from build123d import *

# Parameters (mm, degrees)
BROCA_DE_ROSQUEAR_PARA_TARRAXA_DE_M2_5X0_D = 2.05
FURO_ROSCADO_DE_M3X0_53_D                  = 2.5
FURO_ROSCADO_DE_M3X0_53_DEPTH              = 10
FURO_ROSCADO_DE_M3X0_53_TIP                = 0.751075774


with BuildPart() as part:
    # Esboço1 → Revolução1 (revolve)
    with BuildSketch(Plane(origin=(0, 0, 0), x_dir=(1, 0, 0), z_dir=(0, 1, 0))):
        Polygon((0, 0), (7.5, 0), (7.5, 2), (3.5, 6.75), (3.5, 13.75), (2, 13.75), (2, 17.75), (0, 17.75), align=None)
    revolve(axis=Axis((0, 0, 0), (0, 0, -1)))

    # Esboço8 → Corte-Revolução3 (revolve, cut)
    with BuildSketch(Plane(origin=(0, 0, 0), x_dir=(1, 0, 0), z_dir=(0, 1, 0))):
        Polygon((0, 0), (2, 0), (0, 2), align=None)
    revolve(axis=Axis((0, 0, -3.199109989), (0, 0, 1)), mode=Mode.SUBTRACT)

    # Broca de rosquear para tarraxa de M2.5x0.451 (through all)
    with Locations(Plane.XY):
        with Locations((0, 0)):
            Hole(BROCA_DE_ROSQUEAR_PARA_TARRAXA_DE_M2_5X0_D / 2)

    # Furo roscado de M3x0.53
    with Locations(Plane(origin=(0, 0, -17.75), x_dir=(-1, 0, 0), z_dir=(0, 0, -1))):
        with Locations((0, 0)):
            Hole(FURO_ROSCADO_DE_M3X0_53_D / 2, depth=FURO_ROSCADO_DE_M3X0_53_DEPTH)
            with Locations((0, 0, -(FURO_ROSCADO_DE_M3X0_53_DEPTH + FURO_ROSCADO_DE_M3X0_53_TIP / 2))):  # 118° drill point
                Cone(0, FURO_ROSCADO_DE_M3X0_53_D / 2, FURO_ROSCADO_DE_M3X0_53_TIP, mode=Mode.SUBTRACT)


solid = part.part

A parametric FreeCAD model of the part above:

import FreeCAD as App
import Part
import Sketcher


def add_polygon(sketch, points):
    """Adds a closed chain of lines whose ends are joined by coincident constraints."""
    first, n = sketch.GeometryCount, len(points)
    for a, b in zip(points, points[1:] + points[:1]):
        sketch.addGeometry(Part.LineSegment(App.Vector(*a, 0), App.Vector(*b, 0)), False)
    for i in range(n):
        sketch.addConstraint(Sketcher.Constraint("Coincident", first + i, 2, first + (i + 1) % n, 1))

doc = App.newDocument("Part")
params = doc.addObject("Spreadsheet::Sheet", "Params")
for row, (alias, value) in enumerate([
    ("sketch1_width", "2 mm"),
    ("sketch1_height", "7 mm"),
    ("sketch1_height2", "4 mm"),
    ("sketch1_width2", "7.5 mm"),
    ("sketch1_width3", "1.5 mm"),
    ("revolution_angle", "360 deg"),
    ("sketch2_width", "2 mm"),
    ("groove_angle", "360 deg"),
    ("sketch3_diameter", "2.05 mm"),
    ("hole_diameter", "2.05 mm"),
    ("sketch4_diameter", "2.5 mm"),
    ("hole2_diameter", "2.5 mm"),
    ("hole2_depth", "10 mm"),
], start=1):
    params.set(f"A{row}", alias)
    params.set(f"B{row}", "=" + value)
    params.setAlias(f"B{row}", alias)

body = doc.addObject("PartDesign::Body", "Body")

# Sketch on XZ plane
sketch1 = body.newObject("Sketcher::SketchObject", "Sketch")
sketch1.AttachmentSupport = (doc.getObject("XZ_Plane"), [""])
sketch1.MapMode = "FlatFace"
add_polygon(sketch1, [(0, 0), (7.5, 0), (7.5, -2), (3.5, -6.75), (3.5, -13.75), (2, -13.75), (2, -17.75), (0, -17.75)])  # lines 0-7
sketch1.addConstraint([
    Sketcher.Constraint("Horizontal", 0),
    Sketcher.Constraint("Vertical", 1),
    Sketcher.Constraint("Vertical", 3),
    Sketcher.Constraint("Horizontal", 4),
    Sketcher.Constraint("Vertical", 5),
    Sketcher.Constraint("Horizontal", 6),
    Sketcher.Constraint("Vertical", 7),
    Sketcher.Constraint("Coincident", 7, 2, -1, 1),
    Sketcher.Constraint("Equal", 6, 1),
    Sketcher.Constraint("DistanceX", 6, 2, 6, 1, 2.0),
    Sketcher.Constraint("DistanceY", 3, 2, 3, 1, 7.0),
    Sketcher.Constraint("DistanceY", 5, 2, 5, 1, 4.0),
    Sketcher.Constraint("DistanceX", 0, 1, 0, 2, 7.5),
    Sketcher.Constraint("DistanceX", 4, 2, 4, 1, 1.5),
    Sketcher.Constraint("DistanceY", 7, 1, 7, 2, 17.75),
])
sketch1.setExpression("Constraints[17]", "Params.sketch1_width")
sketch1.setExpression("Constraints[18]", "Params.sketch1_height")
sketch1.setExpression("Constraints[19]", "Params.sketch1_height2")
sketch1.setExpression("Constraints[20]", "Params.sketch1_width2")
sketch1.setExpression("Constraints[21]", "Params.sketch1_width3")
revolution = body.newObject("PartDesign::Revolution", "Revolution")
revolution.Profile = sketch1
revolution.ReferenceAxis = (sketch1, ["V_Axis"])
revolution.setExpression("Angle", "Params.revolution_angle")

# Sketch on XZ plane
sketch2 = body.newObject("Sketcher::SketchObject", "Sketch001")
sketch2.AttachmentSupport = (doc.getObject("XZ_Plane"), [""])
sketch2.MapMode = "FlatFace"
add_polygon(sketch2, [(0, 0), (2, 0), (0, -2)])  # lines 0-2
sketch2.addConstraint([
    Sketcher.Constraint("Horizontal", 0),
    Sketcher.Constraint("Vertical", 2),
    Sketcher.Constraint("Coincident", 2, 2, -1, 1),
    Sketcher.Constraint("Equal", 0, 2),
    Sketcher.Constraint("DistanceX", 0, 1, 0, 2, 2.0),
])
sketch2.setExpression("Constraints[7]", "Params.sketch2_width")
groove = body.newObject("PartDesign::Groove", "Groove")
groove.Profile = sketch2
groove.ReferenceAxis = (sketch2, ["V_Axis"])
groove.setExpression("Angle", "Params.groove_angle")

# Sketch on XY plane
sketch3 = body.newObject("Sketcher::SketchObject", "Sketch002")
sketch3.AttachmentSupport = (doc.getObject("XY_Plane"), [""])
sketch3.MapMode = "FlatFace"
sketch3.addGeometry(Part.Circle(App.Vector(0, 0, 0), App.Vector(0, 0, 1), 1.025), False)
sketch3.addConstraint([
    Sketcher.Constraint("Coincident", 0, 3, -1, 1),
    Sketcher.Constraint("Diameter", 0, 2.05),
])
sketch3.setExpression("Constraints[1]", "Params.sketch3_diameter")
doc.recompute()
hole = body.newObject("PartDesign::Hole", "Hole")
hole.Profile = sketch3
hole.ThreadType = "None"
hole.setExpression("Diameter", "Params.hole_diameter")
hole.DepthType = "ThroughAll"

# Sketch on XY plane
sketch4 = body.newObject("Sketcher::SketchObject", "Sketch003")
sketch4.AttachmentSupport = (doc.getObject("XY_Plane"), [""])
sketch4.MapMode = "FlatFace"
sketch4.AttachmentOffset = App.Placement(App.Vector(0, 0, -17.75), App.Rotation())
sketch4.addGeometry(Part.Circle(App.Vector(0, 0, 0), App.Vector(0, 0, 1), 1.25), False)
sketch4.addConstraint([
    Sketcher.Constraint("Coincident", 0, 3, -1, 1),
    Sketcher.Constraint("Diameter", 0, 2.5),
])
sketch4.setExpression("Constraints[1]", "Params.sketch4_diameter")
doc.recompute()
hole2 = body.newObject("PartDesign::Hole", "Hole001")
hole2.Profile = sketch4
hole2.ThreadType = "None"
hole2.setExpression("Diameter", "Params.hole2_diameter")
hole2.DepthType = "Dimension"
hole2.setExpression("Depth", "Params.hole2_depth")
hole2.DrillPoint = "Angled"
hole2.DrillPointAngle = 118
hole2.Reversed = True

doc.recompute()
